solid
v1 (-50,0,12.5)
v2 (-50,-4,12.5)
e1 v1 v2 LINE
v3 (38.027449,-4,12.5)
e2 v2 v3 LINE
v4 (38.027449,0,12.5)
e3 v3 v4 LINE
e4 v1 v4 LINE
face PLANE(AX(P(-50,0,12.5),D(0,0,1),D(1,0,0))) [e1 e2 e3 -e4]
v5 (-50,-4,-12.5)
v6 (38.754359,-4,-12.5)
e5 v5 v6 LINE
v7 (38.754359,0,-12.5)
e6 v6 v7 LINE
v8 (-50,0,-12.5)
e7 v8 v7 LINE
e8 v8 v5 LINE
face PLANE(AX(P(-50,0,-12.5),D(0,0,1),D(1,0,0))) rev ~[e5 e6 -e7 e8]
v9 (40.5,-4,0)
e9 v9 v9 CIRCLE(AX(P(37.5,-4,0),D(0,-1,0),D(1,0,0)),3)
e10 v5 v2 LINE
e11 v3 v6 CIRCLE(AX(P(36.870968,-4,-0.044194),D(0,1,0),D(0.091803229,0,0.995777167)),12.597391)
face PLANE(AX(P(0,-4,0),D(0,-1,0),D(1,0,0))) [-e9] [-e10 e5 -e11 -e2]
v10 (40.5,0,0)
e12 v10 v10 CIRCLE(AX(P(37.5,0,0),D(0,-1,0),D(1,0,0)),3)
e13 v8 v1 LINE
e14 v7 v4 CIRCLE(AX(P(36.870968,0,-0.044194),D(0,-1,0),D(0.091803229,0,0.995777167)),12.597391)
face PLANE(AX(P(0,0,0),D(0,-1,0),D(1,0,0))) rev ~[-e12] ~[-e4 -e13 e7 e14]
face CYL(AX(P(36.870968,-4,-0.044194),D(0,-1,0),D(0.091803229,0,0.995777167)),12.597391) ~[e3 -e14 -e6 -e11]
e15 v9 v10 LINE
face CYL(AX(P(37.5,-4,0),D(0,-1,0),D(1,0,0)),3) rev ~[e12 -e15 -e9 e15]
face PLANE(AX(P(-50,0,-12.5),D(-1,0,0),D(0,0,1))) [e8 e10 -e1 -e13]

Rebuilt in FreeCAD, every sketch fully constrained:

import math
import FreeCAD as App
import Part
import Sketcher
from FreeCAD import Vector

doc = App.newDocument("Part")
body = doc.addObject("PartDesign::Body", "Body")

# Sketch on XZ plane
sketch1 = doc.addObject("Sketcher::SketchObject", "Sketch")
body.addObject(sketch1)
sketch1.AttachmentSupport = (doc.XZ_Plane, [""])
sketch1.MapMode = "FlatFace"
sketch1.addGeometry(Part.LineSegment(Vector(-50, 12.5, 0), Vector(-50, -12.5, 0)), False)
sketch1.addGeometry(Part.LineSegment(Vector(-50, -12.5, 0), Vector(50, -12.5, 0)), False)
sketch1.addGeometry(Part.LineSegment(Vector(50, -12.5, 0), Vector(50, 12.5, 0)), False)
sketch1.addGeometry(Part.LineSegment(Vector(50, 12.5, 0), Vector(-50, 12.5, 0)), False)
sketch1.addConstraint(Sketcher.Constraint("Coincident", 0, 2, 1, 1))
sketch1.addConstraint(Sketcher.Constraint("Coincident", 1, 2, 2, 1))
sketch1.addConstraint(Sketcher.Constraint("Coincident", 2, 2, 3, 1))
sketch1.addConstraint(Sketcher.Constraint("Coincident", 3, 2, 0, 1))
sketch1.addConstraint(Sketcher.Constraint("Vertical", 0))
sketch1.addConstraint(Sketcher.Constraint("Horizontal", 1))
sketch1.addConstraint(Sketcher.Constraint("Vertical", 2))
sketch1.addConstraint(Sketcher.Constraint("Horizontal", 3))
sketch1.addConstraint(Sketcher.Constraint("Symmetric", 0, 2, 2, 2, -1, 1))
sketch1.addConstraint(Sketcher.Constraint("DistanceX", 1, 1, 1, 2, 100.0))
sketch1.addConstraint(Sketcher.Constraint("DistanceY", 0, 2, 0, 1, 25.0))
pad1 = doc.addObject("PartDesign::Pad", "Pad")
body.addObject(pad1)
pad1.Profile = sketch1
pad1.Length = 4

# Sketch on XZ plane
sketch2 = doc.addObject("Sketcher::SketchObject", "Sketch001")
body.addObject(sketch2)
sketch2.AttachmentSupport = (doc.XZ_Plane, [""])
sketch2.MapMode = "FlatFace"
sketch2.AttachmentOffset = App.Placement(Vector(0, 0, 4), App.Rotation())
sketch2.addGeometry(Part.ArcOfCircle(Part.Circle(Vector(36.870968, -0.044194, 0), Vector(0, 0, 1), 12.597391), math.radians(-81.401674), math.radians(84.732646)), False)
sketch2.addGeometry(Part.LineSegment(Vector(38.754359, -12.5, 0), Vector(50, -12.5, 0)), False)
sketch2.addGeometry(Part.LineSegment(Vector(50, -12.5, 0), Vector(50, 12.5, 0)), False)
sketch2.addGeometry(Part.LineSegment(Vector(50, 12.5, 0), Vector(38.027449, 12.5, 0)), False)
sketch2.addConstraint(Sketcher.Constraint("Coincident", 0, 1, 1, 1))
sketch2.addConstraint(Sketcher.Constraint("Coincident", 1, 2, 2, 1))
sketch2.addConstraint(Sketcher.Constraint("Coincident", 2, 2, 3, 1))
sketch2.addConstraint(Sketcher.Constraint("Coincident", 3, 2, 0, 2))
sketch2.addConstraint(Sketcher.Constraint("Horizontal", 1))
sketch2.addConstraint(Sketcher.Constraint("Vertical", 2))
sketch2.addConstraint(Sketcher.Constraint("Horizontal", 3))
sketch2.addConstraint(Sketcher.Constraint("DistanceY", 2, 1, 2, 2, 25.0))
sketch2.addConstraint(Sketcher.Constraint("DistanceX", -1, 1, 1, 2, 50.0))
sketch2.addConstraint(Sketcher.Constraint("DistanceY", 0, 1, -1, 1, 12.5))
sketch2.addConstraint(Sketcher.Constraint("Radius", 0, 12.597391))
sketch2.addConstraint(Sketcher.Constraint("DistanceX", 1, 1, 1, 2, 11.245641))
sketch2.addConstraint(Sketcher.Constraint("DistanceX", 3, 2, 3, 1, 11.972551))
pocket1 = doc.addObject("PartDesign::Pocket", "Pocket")
body.addObject(pocket1)
pocket1.Profile = sketch2
pocket1.Type = "ThroughAll"

# Sketch on XZ plane
sketch3 = doc.addObject("Sketcher::SketchObject", "Sketch002")
body.addObject(sketch3)
sketch3.AttachmentSupport = (doc.XZ_Plane, [""])
sketch3.MapMode = "FlatFace"
sketch3.AttachmentOffset = App.Placement(Vector(0, 0, 4), App.Rotation())
sketch3.addGeometry(Part.Circle(Vector(37.5, 0, 0), Vector(0, 0, 1), 3), False)
sketch3.addConstraint(Sketcher.Constraint("PointOnObject", 0, 3, -1))
sketch3.addConstraint(Sketcher.Constraint("Diameter", 0, 6.0))
sketch3.addConstraint(Sketcher.Constraint("DistanceX", -1, 1, 0, 3, 37.5))
pocket2 = doc.addObject("PartDesign::Pocket", "Pocket001")
body.addObject(pocket2)
pocket2.Profile = sketch3
pocket2.Type = "ThroughAll"

doc.recompute()
